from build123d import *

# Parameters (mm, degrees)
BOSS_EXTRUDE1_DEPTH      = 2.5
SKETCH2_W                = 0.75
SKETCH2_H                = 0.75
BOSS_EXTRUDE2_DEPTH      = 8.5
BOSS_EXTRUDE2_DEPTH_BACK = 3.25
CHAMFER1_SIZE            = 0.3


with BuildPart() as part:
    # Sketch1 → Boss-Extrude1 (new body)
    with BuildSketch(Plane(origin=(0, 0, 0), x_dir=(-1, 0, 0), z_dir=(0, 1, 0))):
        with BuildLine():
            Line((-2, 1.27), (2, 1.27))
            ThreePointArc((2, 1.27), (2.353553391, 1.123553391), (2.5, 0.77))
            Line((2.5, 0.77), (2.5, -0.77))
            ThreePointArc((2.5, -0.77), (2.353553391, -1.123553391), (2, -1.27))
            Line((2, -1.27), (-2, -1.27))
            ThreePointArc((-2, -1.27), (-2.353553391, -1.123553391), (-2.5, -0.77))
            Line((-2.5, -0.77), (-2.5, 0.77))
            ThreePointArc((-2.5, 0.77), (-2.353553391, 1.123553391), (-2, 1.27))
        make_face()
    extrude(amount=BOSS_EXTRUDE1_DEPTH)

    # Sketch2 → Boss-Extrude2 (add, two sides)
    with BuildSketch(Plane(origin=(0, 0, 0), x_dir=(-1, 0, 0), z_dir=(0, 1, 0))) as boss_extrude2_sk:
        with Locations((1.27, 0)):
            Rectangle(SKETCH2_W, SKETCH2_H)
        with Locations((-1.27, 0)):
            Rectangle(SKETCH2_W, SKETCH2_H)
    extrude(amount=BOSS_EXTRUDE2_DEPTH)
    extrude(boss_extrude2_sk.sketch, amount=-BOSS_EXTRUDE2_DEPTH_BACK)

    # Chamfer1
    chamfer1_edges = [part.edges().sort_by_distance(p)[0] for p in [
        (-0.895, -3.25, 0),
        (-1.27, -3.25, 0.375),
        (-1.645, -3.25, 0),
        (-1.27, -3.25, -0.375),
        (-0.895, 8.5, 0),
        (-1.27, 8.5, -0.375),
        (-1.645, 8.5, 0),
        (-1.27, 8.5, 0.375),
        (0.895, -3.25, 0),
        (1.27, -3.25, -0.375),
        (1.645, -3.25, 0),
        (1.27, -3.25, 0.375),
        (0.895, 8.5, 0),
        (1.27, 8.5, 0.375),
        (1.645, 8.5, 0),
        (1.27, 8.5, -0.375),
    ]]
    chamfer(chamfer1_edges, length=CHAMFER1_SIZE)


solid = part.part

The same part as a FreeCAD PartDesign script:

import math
import FreeCAD as App
import Part
import Sketcher

V = App.Vector


def edges_at(feature, points):
    """Names of the edges that pass closest to the given points."""
    edges = feature.Shape.Edges
    near = lambda p: min(range(len(edges)), key=lambda i: edges[i].distToShape(Part.Vertex(*p))[0])
    return sorted({f"Edge{near(p) + 1}" for p in points})

doc = App.newDocument("Part")
body = doc.addObject("PartDesign::Body", "Body")

# Sketch on XZ plane
sketch1 = body.newObject("Sketcher::SketchObject", "Sketch")
sketch1.AttachmentSupport = (doc.getObject("XZ_Plane"), [""])
sketch1.MapMode = "FlatFace"
sketch1.addGeometry([
    Part.LineSegment(V(-2, 1.27, 0), V(2, 1.27, 0)),  # 0
    Part.ArcOfCircle(Part.Circle(V(2, 0.77, 0), V(0, 0, 1), 0.5), math.radians(0), math.radians(90)),  # 1
    Part.LineSegment(V(2.5, 0.77, 0), V(2.5, -0.77, 0)),  # 2
    Part.ArcOfCircle(Part.Circle(V(2, -0.77, 0), V(0, 0, 1), 0.5), math.radians(-90), math.radians(0)),  # 3
    Part.LineSegment(V(2, -1.27, 0), V(-2, -1.27, 0)),  # 4
    Part.ArcOfCircle(Part.Circle(V(-2, -0.77, 0), V(0, 0, 1), 0.5), math.radians(180), math.radians(270)),  # 5
    Part.LineSegment(V(-2.5, -0.77, 0), V(-2.5, 0.77, 0)),  # 6
    Part.ArcOfCircle(Part.Circle(V(-2, 0.77, 0), V(0, 0, 1), 0.5), math.radians(90), math.radians(180)),  # 7
], False)
sketch1.addConstraint([
    Sketcher.Constraint("Tangent", 0, 2, 1, 2),
    Sketcher.Constraint("Tangent", 1, 1, 2, 1),
    Sketcher.Constraint("Tangent", 2, 2, 3, 2),
    Sketcher.Constraint("Tangent", 3, 1, 4, 1),
    Sketcher.Constraint("Tangent", 4, 2, 5, 2),
    Sketcher.Constraint("Tangent", 5, 1, 6, 1),
    Sketcher.Constraint("Tangent", 6, 2, 7, 2),
    Sketcher.Constraint("Tangent", 7, 1, 0, 1),
    Sketcher.Constraint("Horizontal", 0),
    Sketcher.Constraint("Vertical", 2),
    Sketcher.Constraint("Horizontal", 4),
    Sketcher.Constraint("Vertical", 6),
    Sketcher.Constraint("Equal", 1, 3),
    Sketcher.Constraint("Equal", 3, 5),
    Sketcher.Constraint("Equal", 5, 7),
    Sketcher.Constraint("Symmetric", 1, 3, 5, 3, -1, 1),
    Sketcher.Constraint("Radius", 1, 0.5),
    Sketcher.Constraint("DistanceX", 0, 1, 0, 2, 4.0),
    Sketcher.Constraint("DistanceY", 2, 2, 2, 1, 1.54),
])
pad1 = body.newObject("PartDesign::Pad", "Pad")
pad1.Profile = sketch1
pad1.Length = 2.5
pad1.Reversed = True

# Sketch on XZ plane
sketch2 = body.newObject("Sketcher::SketchObject", "Sketch001")
sketch2.AttachmentSupport = (doc.getObject("XZ_Plane"), [""])
sketch2.MapMode = "FlatFace"
sketch2.addGeometry([
    Part.LineSegment(V(-0.9, 0.4, 0), V(-0.9, -0.4, 0)),  # 0
    Part.LineSegment(V(-0.9, -0.4, 0), V(-1.6, -0.4, 0)),  # 1
    Part.LineSegment(V(-1.6, -0.4, 0), V(-1.6, 0.4, 0)),  # 2
    Part.LineSegment(V(-1.6, 0.4, 0), V(-0.9, 0.4, 0)),  # 3
    Part.LineSegment(V(1.6, 0.4, 0), V(1.6, -0.4, 0)),  # 4
    Part.LineSegment(V(1.6, -0.4, 0), V(0.9, -0.4, 0)),  # 5
    Part.LineSegment(V(0.9, -0.4, 0), V(0.9, 0.4, 0)),  # 6
    Part.LineSegment(V(0.9, 0.4, 0), V(1.6, 0.4, 0)),  # 7
], False)
sketch2.addConstraint([
    Sketcher.Constraint("Coincident", 0, 2, 1, 1),
    Sketcher.Constraint("Coincident", 1, 2, 2, 1),
    Sketcher.Constraint("Coincident", 2, 2, 3, 1),
    Sketcher.Constraint("Coincident", 3, 2, 0, 1),
    Sketcher.Constraint("Coincident", 4, 2, 5, 1),
    Sketcher.Constraint("Coincident", 5, 2, 6, 1),
    Sketcher.Constraint("Coincident", 6, 2, 7, 1),
    Sketcher.Constraint("Coincident", 7, 2, 4, 1),
    Sketcher.Constraint("Vertical", 0),
    Sketcher.Constraint("Horizontal", 1),
    Sketcher.Constraint("Vertical", 2),
    Sketcher.Constraint("Horizontal", 3),
    Sketcher.Constraint("Vertical", 4),
    Sketcher.Constraint("Horizontal", 5),
    Sketcher.Constraint("Vertical", 6),
    Sketcher.Constraint("Horizontal", 7),
    Sketcher.Constraint("Symmetric", 2, 2, 4, 2, -1, 1),
    Sketcher.Constraint("Symmetric", 0, 2, 6, 2, -1, 1),
    Sketcher.Constraint("Horizontal", 1, 2, 4, 2),
    Sketcher.Constraint("Equal", 7, 0),
    Sketcher.Constraint("DistanceX", 1, 2, 1, 1, 0.75),
    Sketcher.Constraint("DistanceX", 0, 2, 4, 2, 2.54),
])
pad2 = body.newObject("PartDesign::Pad", "Pad001")
pad2.Profile = sketch2
pad2.Type = "TwoLengths"
pad2.Length = 8.5
pad2.Length2 = 3.25
pad2.Reversed = True
doc.recompute()

chamfer = body.newObject("PartDesign::Chamfer", "Chamfer")
chamfer.Base = (pad2, edges_at(pad2, [
    (-0.895, -3.25, 0),
    (-1.27, -3.25, 0.375),
    (-1.645, -3.25, 0),
    (-1.27, -3.25, -0.375),
    (-0.895, 8.5, 0),
    (-1.27, 8.5, -0.375),
    (-1.645, 8.5, 0),
    (-1.27, 8.5, 0.375),
    (0.895, -3.25, 0),
    (1.27, -3.25, -0.375),
    (1.645, -3.25, 0),
    (1.27, -3.25, 0.375),
    (0.895, 8.5, 0),
    (1.27, 8.5, 0.375),
    (1.645, 8.5, 0),
    (1.27, 8.5, -0.375),
]))
chamfer.Size = 0.3

doc.recompute()
